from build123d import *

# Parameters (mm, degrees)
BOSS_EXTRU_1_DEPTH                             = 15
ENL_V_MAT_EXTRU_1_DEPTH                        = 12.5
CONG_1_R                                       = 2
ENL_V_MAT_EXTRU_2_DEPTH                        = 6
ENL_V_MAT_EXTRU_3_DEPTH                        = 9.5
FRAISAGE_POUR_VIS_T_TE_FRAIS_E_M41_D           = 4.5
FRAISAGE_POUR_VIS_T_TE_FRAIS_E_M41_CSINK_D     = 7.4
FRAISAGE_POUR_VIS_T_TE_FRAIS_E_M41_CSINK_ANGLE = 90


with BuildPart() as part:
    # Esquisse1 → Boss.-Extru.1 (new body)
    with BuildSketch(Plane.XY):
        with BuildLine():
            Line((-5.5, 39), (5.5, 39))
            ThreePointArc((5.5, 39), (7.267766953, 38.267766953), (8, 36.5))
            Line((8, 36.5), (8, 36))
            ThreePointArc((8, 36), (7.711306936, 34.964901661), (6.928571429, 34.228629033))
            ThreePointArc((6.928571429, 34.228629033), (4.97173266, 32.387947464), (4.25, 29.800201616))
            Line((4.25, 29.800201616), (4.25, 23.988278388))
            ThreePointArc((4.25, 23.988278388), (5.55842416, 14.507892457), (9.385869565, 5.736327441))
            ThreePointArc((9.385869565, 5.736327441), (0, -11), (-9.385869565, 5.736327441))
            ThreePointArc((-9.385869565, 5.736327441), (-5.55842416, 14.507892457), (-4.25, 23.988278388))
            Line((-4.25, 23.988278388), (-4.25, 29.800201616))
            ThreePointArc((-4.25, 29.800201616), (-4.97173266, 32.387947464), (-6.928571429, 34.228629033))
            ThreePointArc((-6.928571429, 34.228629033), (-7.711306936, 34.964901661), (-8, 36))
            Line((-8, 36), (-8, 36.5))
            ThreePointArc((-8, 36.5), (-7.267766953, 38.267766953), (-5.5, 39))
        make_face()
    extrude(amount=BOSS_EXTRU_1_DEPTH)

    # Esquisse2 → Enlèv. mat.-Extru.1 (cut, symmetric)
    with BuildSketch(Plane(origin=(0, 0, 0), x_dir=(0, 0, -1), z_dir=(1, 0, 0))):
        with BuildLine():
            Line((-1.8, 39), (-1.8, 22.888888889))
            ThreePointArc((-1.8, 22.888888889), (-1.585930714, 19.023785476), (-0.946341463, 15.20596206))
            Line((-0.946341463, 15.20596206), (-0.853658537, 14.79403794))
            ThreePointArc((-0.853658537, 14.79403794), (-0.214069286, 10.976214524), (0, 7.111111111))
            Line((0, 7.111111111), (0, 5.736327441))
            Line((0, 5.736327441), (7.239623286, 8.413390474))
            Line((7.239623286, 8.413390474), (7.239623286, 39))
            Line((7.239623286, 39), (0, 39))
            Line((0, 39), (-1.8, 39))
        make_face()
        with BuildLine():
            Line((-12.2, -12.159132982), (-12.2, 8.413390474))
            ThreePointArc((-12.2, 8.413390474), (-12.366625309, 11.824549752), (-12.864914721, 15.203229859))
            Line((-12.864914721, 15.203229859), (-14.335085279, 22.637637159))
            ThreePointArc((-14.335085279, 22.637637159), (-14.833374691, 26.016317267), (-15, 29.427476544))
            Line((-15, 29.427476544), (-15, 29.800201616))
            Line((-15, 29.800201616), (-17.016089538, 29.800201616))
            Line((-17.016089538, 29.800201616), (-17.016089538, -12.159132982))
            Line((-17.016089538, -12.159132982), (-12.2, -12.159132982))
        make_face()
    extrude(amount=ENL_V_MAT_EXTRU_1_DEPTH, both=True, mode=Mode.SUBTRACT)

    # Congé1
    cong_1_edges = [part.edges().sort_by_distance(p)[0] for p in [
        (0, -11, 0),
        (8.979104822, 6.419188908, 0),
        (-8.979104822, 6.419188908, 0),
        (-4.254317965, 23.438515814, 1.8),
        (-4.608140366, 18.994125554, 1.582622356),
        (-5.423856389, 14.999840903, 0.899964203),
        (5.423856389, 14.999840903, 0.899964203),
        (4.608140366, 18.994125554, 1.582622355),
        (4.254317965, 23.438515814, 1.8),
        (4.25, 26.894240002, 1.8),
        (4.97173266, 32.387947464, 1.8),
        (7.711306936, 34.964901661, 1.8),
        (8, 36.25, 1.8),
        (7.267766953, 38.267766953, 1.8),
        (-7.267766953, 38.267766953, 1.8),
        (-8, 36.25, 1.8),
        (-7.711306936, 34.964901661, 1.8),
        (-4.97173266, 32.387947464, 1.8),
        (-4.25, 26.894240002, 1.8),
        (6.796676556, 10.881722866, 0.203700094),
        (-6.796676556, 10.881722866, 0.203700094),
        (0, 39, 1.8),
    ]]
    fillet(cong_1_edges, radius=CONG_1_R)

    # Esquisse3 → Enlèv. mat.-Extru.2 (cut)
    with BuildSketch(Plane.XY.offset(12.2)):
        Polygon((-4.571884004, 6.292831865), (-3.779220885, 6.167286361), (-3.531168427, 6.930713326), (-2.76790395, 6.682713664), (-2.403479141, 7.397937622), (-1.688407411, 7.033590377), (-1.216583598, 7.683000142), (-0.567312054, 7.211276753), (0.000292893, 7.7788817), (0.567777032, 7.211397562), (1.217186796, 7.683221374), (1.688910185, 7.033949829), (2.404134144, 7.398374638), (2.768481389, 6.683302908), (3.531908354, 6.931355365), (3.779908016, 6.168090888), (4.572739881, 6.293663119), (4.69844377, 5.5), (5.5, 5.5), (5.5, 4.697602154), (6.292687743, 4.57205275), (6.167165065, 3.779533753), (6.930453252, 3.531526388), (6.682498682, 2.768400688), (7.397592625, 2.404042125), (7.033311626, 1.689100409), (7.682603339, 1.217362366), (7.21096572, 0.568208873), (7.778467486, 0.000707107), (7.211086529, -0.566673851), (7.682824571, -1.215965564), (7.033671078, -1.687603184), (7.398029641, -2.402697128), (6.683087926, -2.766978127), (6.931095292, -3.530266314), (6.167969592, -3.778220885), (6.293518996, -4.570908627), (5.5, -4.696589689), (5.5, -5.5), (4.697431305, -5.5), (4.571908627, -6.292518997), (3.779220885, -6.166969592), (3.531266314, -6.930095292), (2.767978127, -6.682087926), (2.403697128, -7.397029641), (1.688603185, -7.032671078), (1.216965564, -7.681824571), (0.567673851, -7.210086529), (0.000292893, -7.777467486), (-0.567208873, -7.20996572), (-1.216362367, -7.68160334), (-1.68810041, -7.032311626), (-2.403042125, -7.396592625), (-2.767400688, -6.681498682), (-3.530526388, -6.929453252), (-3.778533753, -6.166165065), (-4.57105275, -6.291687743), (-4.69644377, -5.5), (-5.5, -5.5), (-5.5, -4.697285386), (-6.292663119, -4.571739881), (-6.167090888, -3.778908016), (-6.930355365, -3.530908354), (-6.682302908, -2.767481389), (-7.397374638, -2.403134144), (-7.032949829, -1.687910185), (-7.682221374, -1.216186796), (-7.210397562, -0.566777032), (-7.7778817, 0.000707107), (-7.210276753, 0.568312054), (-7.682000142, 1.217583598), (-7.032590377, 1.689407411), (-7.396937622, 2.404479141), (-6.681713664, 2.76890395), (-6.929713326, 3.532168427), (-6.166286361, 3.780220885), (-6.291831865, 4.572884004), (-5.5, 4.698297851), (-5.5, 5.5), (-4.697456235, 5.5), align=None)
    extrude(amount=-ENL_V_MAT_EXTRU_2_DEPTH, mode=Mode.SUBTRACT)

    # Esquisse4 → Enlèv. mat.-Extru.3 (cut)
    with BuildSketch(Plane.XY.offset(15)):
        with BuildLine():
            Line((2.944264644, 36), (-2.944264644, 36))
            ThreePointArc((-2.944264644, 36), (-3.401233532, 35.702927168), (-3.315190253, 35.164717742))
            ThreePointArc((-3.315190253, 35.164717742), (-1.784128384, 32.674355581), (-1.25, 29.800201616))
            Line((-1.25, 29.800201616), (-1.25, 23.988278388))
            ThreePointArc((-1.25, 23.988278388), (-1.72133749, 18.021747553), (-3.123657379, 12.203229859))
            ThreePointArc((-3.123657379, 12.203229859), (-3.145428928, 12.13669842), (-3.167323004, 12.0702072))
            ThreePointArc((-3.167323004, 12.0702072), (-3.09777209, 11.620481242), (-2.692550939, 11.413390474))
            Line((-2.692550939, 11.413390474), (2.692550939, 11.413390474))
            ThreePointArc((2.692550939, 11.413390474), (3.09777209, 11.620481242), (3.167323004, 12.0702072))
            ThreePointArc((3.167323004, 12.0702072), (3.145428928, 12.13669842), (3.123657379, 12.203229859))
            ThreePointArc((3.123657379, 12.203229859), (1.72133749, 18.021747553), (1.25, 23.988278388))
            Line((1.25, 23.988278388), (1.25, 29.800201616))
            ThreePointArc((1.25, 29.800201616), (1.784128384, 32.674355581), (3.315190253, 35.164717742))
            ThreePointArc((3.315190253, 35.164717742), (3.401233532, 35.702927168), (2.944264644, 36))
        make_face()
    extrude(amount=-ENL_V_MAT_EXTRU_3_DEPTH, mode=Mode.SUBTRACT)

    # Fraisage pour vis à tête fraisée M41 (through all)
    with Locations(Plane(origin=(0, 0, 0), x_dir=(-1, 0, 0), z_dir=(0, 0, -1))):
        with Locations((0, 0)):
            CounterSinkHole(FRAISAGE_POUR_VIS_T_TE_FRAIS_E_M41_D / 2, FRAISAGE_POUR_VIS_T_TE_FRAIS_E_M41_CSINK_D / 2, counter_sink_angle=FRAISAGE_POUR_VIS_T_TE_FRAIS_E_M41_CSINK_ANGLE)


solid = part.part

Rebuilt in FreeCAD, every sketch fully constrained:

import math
import FreeCAD as App
import Part
import Sketcher
from FreeCAD import Vector
Q = App.Units.Quantity


def edges_at(feature, points):
    """Names of the edges that pass closest to the given points."""
    edges = feature.Shape.Edges
    near = lambda p: min(range(len(edges)), key=lambda i: edges[i].distToShape(Part.Vertex(*p))[0])
    return sorted({f"Edge{near(p) + 1}" for p in points})

doc = App.newDocument("Part")
params = doc.addObject("Spreadsheet::Sheet", "Params")
for row, (alias, value) in enumerate([
    ("sketch1_radius", "2 mm"),
    ("sketch1_radius2", "5 mm"),
    ("sketch1_radius3", "35 mm"),
    ("sketch1_radius4", "11 mm"),
    ("sketch1_radius5", "2.5 mm"),
    ("pad1_length", "15 mm"),
    ("sketch2_radius", "35 mm"),
    ("pocket1_length", "25 mm"),
    ("fillet_radius", "2 mm"),
    ("pocket2_length", "6 mm"),
    ("sketch4_radius", "8 mm"),
    ("sketch4_radius2", "38 mm"),
    ("sketch4_radius3", "0.5 mm"),
    ("pocket3_length", "9.5 mm"),
    ("sketch5_diameter", "4.5 mm"),
    ("hole_diameter", "4.5 mm"),
    ("hole_csink_diameter", "7.4 mm"),
], start=1):
    params.set(f"A{row}", alias)
    params.set(f"B{row}", "=" + value)
    params.setAlias(f"B{row}", alias)

body = doc.addObject("PartDesign::Body", "Body")

sketch1 = body.newObject("Sketcher::SketchObject", "Sketch")
sketch1.AttachmentSupport = (doc.getObject("XY_Plane"), [""])
sketch1.MapMode = "FlatFace"
sketch1.addGeometry([
    Part.LineSegment(Vector(5.5, 39, 0), Vector(-5.5, 39, 0)),
    Part.ArcOfCircle(Part.Circle(Vector(-5.5, 36.5, 0), Vector(0, 0, 1), 2.5), math.radians(90), math.radians(180)),
    Part.LineSegment(Vector(-8, 36.5, 0), Vector(-8, 36, 0)),
    Part.ArcOfCircle(Part.Circle(Vector(-6, 36, 0), Vector(0, 0, 1), 2), math.radians(180), math.radians(242)),
    Part.ArcOfCircle(Part.Circle(Vector(-9.2, 29.8, 0), Vector(0, 0, 1), 5), math.radians(0), math.radians(62)),
    Part.LineSegment(Vector(-4.2, 29.8, 0), Vector(-4.2, 24, 0)),
    Part.ArcOfCircle(Part.Circle(Vector(-39.3, 24, 0), Vector(0, 0, 1), 35), math.radians(-31), math.radians(0)),
    Part.ArcOfCircle(Part.Circle(Vector(0, 0, 0), Vector(0, 0, 1), 11), math.radians(149), math.radians(391)),
    Part.ArcOfCircle(Part.Circle(Vector(39.3, 24, 0), Vector(0, 0, 1), 35), math.radians(-180), math.radians(-149)),
    Part.LineSegment(Vector(4.2, 24, 0), Vector(4.2, 29.8, 0)),
    Part.ArcOfCircle(Part.Circle(Vector(9.2, 29.8, 0), Vector(0, 0, 1), 5), math.radians(118), math.radians(180)),
    Part.ArcOfCircle(Part.Circle(Vector(6, 36, 0), Vector(0, 0, 1), 2), math.radians(-62), math.radians(0)),
    Part.LineSegment(Vector(8, 36, 0), Vector(8, 36.5, 0)),
    Part.ArcOfCircle(Part.Circle(Vector(5.5, 36.5, 0), Vector(0, 0, 1), 2.5), math.radians(0), math.radians(90)),
], False)
sketch1.addConstraint([
    Sketcher.Constraint("Tangent", 0, 2, 1, 1),
    Sketcher.Constraint("Tangent", 1, 2, 2, 1),
    Sketcher.Constraint("Tangent", 2, 2, 3, 1),
    Sketcher.Constraint("Tangent", 3, 2, 4, 2),
    Sketcher.Constraint("Tangent", 4, 1, 5, 1),
    Sketcher.Constraint("Tangent", 5, 2, 6, 2),
    Sketcher.Constraint("Tangent", 6, 1, 7, 1),
    Sketcher.Constraint("Tangent", 7, 2, 8, 2),
    Sketcher.Constraint("Tangent", 8, 1, 9, 1),
    Sketcher.Constraint("Tangent", 9, 2, 10, 2),
    Sketcher.Constraint("Tangent", 10, 1, 11, 1),
    Sketcher.Constraint("Tangent", 11, 2, 12, 1),
    Sketcher.Constraint("Tangent", 12, 2, 13, 1),
    Sketcher.Constraint("Tangent", 13, 2, 0, 1),
    Sketcher.Constraint("Horizontal", 0),
    Sketcher.Constraint("Vertical", 2),
    Sketcher.Constraint("Vertical", 5),
    Sketcher.Constraint("Vertical", 9),
    Sketcher.Constraint("Vertical", 12),
    Sketcher.Constraint("Coincident", 7, 3, -1, 1),
    Sketcher.Constraint("Equal", 6, 8),
    Sketcher.Constraint("Equal", 4, 10),
    Sketcher.Constraint("Equal", 3, 11),
    Sketcher.Constraint("Equal", 1, 13),
    Sketcher.Constraint("Symmetric", 4, 3, 10, 3, -2),
    Sketcher.Constraint("Horizontal", 3, 3, 11, 3),
    Sketcher.Constraint("Radius", 3, Q("2 mm")),
    Sketcher.Constraint("Radius", 4, Q("5 mm")),
    Sketcher.Constraint("Radius", 6, Q("35 mm")),
    Sketcher.Constraint("Radius", 7, Q("11 mm")),
    Sketcher.Constraint("Radius", 1, Q("2.5 mm")),
    Sketcher.Constraint("DistanceX", 0, 2, 0, 1, Q("11 mm")),
    Sketcher.Constraint("DistanceY", 2, 2, 2, 1, Q("0.5 mm")),
    Sketcher.Constraint("DistanceY", -1, 1, 3, 3, Q("36 mm")),
    Sketcher.Constraint("DistanceX", 4, 3, 8, 3, Q("48.5 mm")),
])
sketch1.setExpression("Constraints[26]", "Params.sketch1_radius")
sketch1.setExpression("Constraints[27]", "Params.sketch1_radius2")
sketch1.setExpression("Constraints[28]", "Params.sketch1_radius3")
sketch1.setExpression("Constraints[29]", "Params.sketch1_radius4")
sketch1.setExpression("Constraints[30]", "Params.sketch1_radius5")
pad1 = body.newObject("PartDesign::Pad", "Pad")
pad1.Profile = sketch1
pad1.setExpression("Length", "Params.pad1_length")

sketch2 = body.newObject("Sketcher::SketchObject", "Sketch001")
sketch2.AttachmentSupport = (doc.getObject("YZ_Plane"), [""])
sketch2.MapMode = "FlatFace"
sketch2.addGeometry([
    Part.LineSegment(Vector(39, 1.8, 0), Vector(22.89, 1.8, 0)),
    Part.ArcOfCircle(Part.Circle(Vector(22.89, -33.2, 0), Vector(0, 0, 1), 35), math.radians(90), math.radians(102.68)),
    Part.LineSegment(Vector(15.21, 0.95, 0), Vector(14.79, 0.85, 0)),
    Part.ArcOfCircle(Part.Circle(Vector(7.11, 35, 0), Vector(0, 0, 1), 35), math.radians(-90), math.radians(-77.32)),
    Part.LineSegment(Vector(7.11, 0, 0), Vector(5.74, 0, 0)),
    Part.LineSegment(Vector(5.74, 0, 0), Vector(8.41, -7.24, 0)),
    Part.LineSegment(Vector(8.41, -7.24, 0), Vector(39, -7.24, 0)),
    Part.LineSegment(Vector(39, -7.24, 0), Vector(39, 1.8, 0)),
    Part.LineSegment(Vector(-12.16, 12.2, 0), Vector(8.41, 12.2, 0)),
    Part.ArcOfCircle(Part.Circle(Vector(8.41, 47.2, 0), Vector(0, 0, 1), 35), math.radians(-90), math.radians(-78.81)),
    Part.LineSegment(Vector(15.2, 12.86, 0), Vector(22.64, 14.34, 0)),
    Part.ArcOfCircle(Part.Circle(Vector(29.43, -20, 0), Vector(0, 0, 1), 35), math.radians(90), math.radians(101.19)),
    Part.LineSegment(Vector(29.43, 15, 0), Vector(29.8, 15, 0)),
    Part.LineSegment(Vector(29.8, 15, 0), Vector(29.8, 17.02, 0)),
    Part.LineSegment(Vector(29.8, 17.02, 0), Vector(-12.16, 17.02, 0)),
    Part.LineSegment(Vector(-12.16, 17.02, 0), Vector(-12.16, 12.2, 0)),
], False)
sketch2.addConstraint([
    Sketcher.Constraint("Tangent", 0, 2, 1, 1),
    Sketcher.Constraint("Tangent", 1, 2, 2, 1),
    Sketcher.Constraint("Tangent", 2, 2, 3, 2),
    Sketcher.Constraint("Tangent", 3, 1, 4, 1),
    Sketcher.Constraint("Coincident", 4, 2, 5, 1),
    Sketcher.Constraint("Coincident", 5, 2, 6, 1),
    Sketcher.Constraint("Coincident", 6, 2, 7, 1),
    Sketcher.Constraint("Coincident", 7, 2, 0, 1),
    Sketcher.Constraint("Tangent", 8, 2, 9, 1),
    Sketcher.Constraint("Tangent", 9, 2, 10, 1),
    Sketcher.Constraint("Tangent", 10, 2, 11, 2),
    Sketcher.Constraint("Tangent", 11, 1, 12, 1),
    Sketcher.Constraint("Coincident", 12, 2, 13, 1),
    Sketcher.Constraint("Coincident", 13, 2, 14, 1),
    Sketcher.Constraint("Coincident", 14, 2, 15, 1),
    Sketcher.Constraint("Coincident", 15, 2, 8, 1),
    Sketcher.Constraint("Horizontal", 0),
    Sketcher.Constraint("Horizontal", 4),
    Sketcher.Constraint("Horizontal", 6),
    Sketcher.Constraint("Vertical", 7),
    Sketcher.Constraint("Horizontal", 8),
    Sketcher.Constraint("Horizontal", 12),
    Sketcher.Constraint("Vertical", 13),
    Sketcher.Constraint("Horizontal", 14),
    Sketcher.Constraint("Vertical", 15),
    Sketcher.Constraint("Equal", 1, 3),
    Sketcher.Constraint("Equal", 3, 9),
    Sketcher.Constraint("Equal", 9, 11),
    Sketcher.Constraint("PointOnObject", 3, 1, -1),
    Sketcher.Constraint("Vertical", 9, 3, 5, 2),
    Sketcher.Constraint("Radius", 1, Q("35 mm")),
    Sketcher.Constraint("DistanceY", 11, 3, -1, 1, Q("20 mm")),
    Sketcher.Constraint("DistanceX", -1, 1, 6, 2, Q("39 mm")),
    Sketcher.Constraint("DistanceY", 1, 3, -1, 1, Q("33.2 mm")),
    Sketcher.Constraint("DistanceY", -1, 1, 9, 3, Q("47.2 mm")),
    Sketcher.Constraint("DistanceX", 0, 2, 0, 1, Q("16.111111 mm")),
    Sketcher.Constraint("DistanceX", 6, 1, 6, 2, Q("30.58661 mm")),
    Sketcher.Constraint("DistanceY", 13, 1, 13, 2, Q("2.01609 mm")),
    Sketcher.Constraint("DistanceX", -1, 1, 12, 2, Q("29.800202 mm")),
    Sketcher.Constraint("DistanceX", 2, 2, 10, 2, Q("7.843599 mm")),
    Sketcher.Constraint("Distance", 5, Q("7.718731 mm")),
    Sketcher.Constraint("Distance", 10, Q("7.578378 mm")),
    Sketcher.Constraint("DistanceX", 4, 2, 4, 1, Q("1.374784 mm")),
    Sketcher.Constraint("DistanceX", 8, 1, 8, 2, Q("20.572523 mm")),
])
sketch2.setExpression("Constraints[30]", "Params.sketch2_radius")
pocket1 = body.newObject("PartDesign::Pocket", "Pocket")
pocket1.Profile = sketch2
pocket1.setExpression("Length", "Params.pocket1_length")
pocket1.Midplane = True
doc.recompute()

fillet = body.newObject("PartDesign::Fillet", "Fillet")
fillet.Base = (pocket1, edges_at(pocket1, [
    (0, -11, 0),
    (8.979, 6.419, 0),
    (-8.979, 6.419, 0),
    (-4.254, 23.439, 1.8),
    (-4.608, 18.994, 1.583),
    (-5.424, 15, 0.9),
    (5.424, 15, 0.9),
    (4.608, 18.994, 1.583),
    (4.254, 23.439, 1.8),
    (4.25, 26.894, 1.8),
    (4.972, 32.388, 1.8),
    (7.711, 34.965, 1.8),
    (8, 36.25, 1.8),
    (7.268, 38.268, 1.8),
    (-7.268, 38.268, 1.8),
    (-8, 36.25, 1.8),
    (-7.711, 34.965, 1.8),
    (-4.972, 32.388, 1.8),
    (-4.25, 26.894, 1.8),
    (6.797, 10.882, 0.204),
    (-6.797, 10.882, 0.204),
    (0, 39, 1.8),
]))
fillet.setExpression("Radius", "Params.fillet_radius")

sketch3 = body.newObject("Sketcher::SketchObject", "Sketch002")
sketch3.AttachmentSupport = (doc.getObject("XY_Plane"), [""])
sketch3.MapMode = "FlatFace"
sketch3.AttachmentOffset = App.Placement(Vector(0, 0, 12.2), App.Rotation())
sketch3.addGeometry([
    Part.LineSegment(Vector(-3.8, 6.2, 0), Vector(-4.6, 6.3, 0)),
    Part.LineSegment(Vector(-4.6, 6.3, 0), Vector(-4.7, 5.5, 0)),
    Part.LineSegment(Vector(-4.7, 5.5, 0), Vector(-5.5, 5.5, 0)),
    Part.LineSegment(Vector(-5.5, 5.5, 0), Vector(-5.5, 4.7, 0)),
    Part.LineSegment(Vector(-5.5, 4.7, 0), Vector(-6.3, 4.6, 0)),
    Part.LineSegment(Vector(-6.3, 4.6, 0), Vector(-6.2, 3.8, 0)),
    Part.LineSegment(Vector(-6.2, 3.8, 0), Vector(-6.9, 3.5, 0)),
    Part.LineSegment(Vector(-6.9, 3.5, 0), Vector(-6.7, 2.8, 0)),
    Part.LineSegment(Vector(-6.7, 2.8, 0), Vector(-7.4, 2.4, 0)),
    Part.LineSegment(Vector(-7.4, 2.4, 0), Vector(-7, 1.7, 0)),
    Part.LineSegment(Vector(-7, 1.7, 0), Vector(-7.7, 1.2, 0)),
    Part.LineSegment(Vector(-7.7, 1.2, 0), Vector(-7.2, 0.6, 0)),
    Part.LineSegment(Vector(-7.2, 0.6, 0), Vector(-7.8, 0, 0)),
    Part.LineSegment(Vector(-7.8, 0, 0), Vector(-7.2, -0.6, 0)),
    Part.LineSegment(Vector(-7.2, -0.6, 0), Vector(-7.7, -1.2, 0)),
    Part.LineSegment(Vector(-7.7, -1.2, 0), Vector(-7, -1.7, 0)),
    Part.LineSegment(Vector(-7, -1.7, 0), Vector(-7.4, -2.4, 0)),
    Part.LineSegment(Vector(-7.4, -2.4, 0), Vector(-6.7, -2.8, 0)),
    Part.LineSegment(Vector(-6.7, -2.8, 0), Vector(-6.9, -3.5, 0)),
    Part.LineSegment(Vector(-6.9, -3.5, 0), Vector(-6.2, -3.8, 0)),
    Part.LineSegment(Vector(-6.2, -3.8, 0), Vector(-6.3, -4.6, 0)),
    Part.LineSegment(Vector(-6.3, -4.6, 0), Vector(-5.5, -4.7, 0)),
    Part.LineSegment(Vector(-5.5, -4.7, 0), Vector(-5.5, -5.5, 0)),
    Part.LineSegment(Vector(-5.5, -5.5, 0), Vector(-4.7, -5.5, 0)),
    Part.LineSegment(Vector(-4.7, -5.5, 0), Vector(-4.6, -6.3, 0)),
    Part.LineSegment(Vector(-4.6, -6.3, 0), Vector(-3.8, -6.2, 0)),
    Part.LineSegment(Vector(-3.8, -6.2, 0), Vector(-3.5, -6.9, 0)),
    Part.LineSegment(Vector(-3.5, -6.9, 0), Vector(-2.8, -6.7, 0)),
    Part.LineSegment(Vector(-2.8, -6.7, 0), Vector(-2.4, -7.4, 0)),
    Part.LineSegment(Vector(-2.4, -7.4, 0), Vector(-1.7, -7, 0)),
    Part.LineSegment(Vector(-1.7, -7, 0), Vector(-1.2, -7.7, 0)),
    Part.LineSegment(Vector(-1.2, -7.7, 0), Vector(-0.6, -7.2, 0)),
    Part.LineSegment(Vector(-0.6, -7.2, 0), Vector(0, -7.8, 0)),
    Part.LineSegment(Vector(0, -7.8, 0), Vector(0.6, -7.2, 0)),
    Part.LineSegment(Vector(0.6, -7.2, 0), Vector(1.2, -7.7, 0)),
    Part.LineSegment(Vector(1.2, -7.7, 0), Vector(1.7, -7, 0)),
    Part.LineSegment(Vector(1.7, -7, 0), Vector(2.4, -7.4, 0)),
    Part.LineSegment(Vector(2.4, -7.4, 0), Vector(2.8, -6.7, 0)),
    Part.LineSegment(Vector(2.8, -6.7, 0), Vector(3.5, -6.9, 0)),
    Part.LineSegment(Vector(3.5, -6.9, 0), Vector(3.8, -6.2, 0)),
    Part.LineSegment(Vector(3.8, -6.2, 0), Vector(4.6, -6.3, 0)),
    Part.LineSegment(Vector(4.6, -6.3, 0), Vector(4.7, -5.5, 0)),
    Part.LineSegment(Vector(4.7, -5.5, 0), Vector(5.5, -5.5, 0)),
    Part.LineSegment(Vector(5.5, -5.5, 0), Vector(5.5, -4.7, 0)),
    Part.LineSegment(Vector(5.5, -4.7, 0), Vector(6.3, -4.6, 0)),
    Part.LineSegment(Vector(6.3, -4.6, 0), Vector(6.2, -3.8, 0)),
    Part.LineSegment(Vector(6.2, -3.8, 0), Vector(6.9, -3.5, 0)),
    Part.LineSegment(Vector(6.9, -3.5, 0), Vector(6.7, -2.8, 0)),
    Part.LineSegment(Vector(6.7, -2.8, 0), Vector(7.4, -2.4, 0)),
    Part.LineSegment(Vector(7.4, -2.4, 0), Vector(7, -1.7, 0)),
    Part.LineSegment(Vector(7, -1.7, 0), Vector(7.7, -1.2, 0)),
    Part.LineSegment(Vector(7.7, -1.2, 0), Vector(7.2, -0.6, 0)),
    Part.LineSegment(Vector(7.2, -0.6, 0), Vector(7.8, 0, 0)),
    Part.LineSegment(Vector(7.8, 0, 0), Vector(7.2, 0.6, 0)),
    Part.LineSegment(Vector(7.2, 0.6, 0), Vector(7.7, 1.2, 0)),
    Part.LineSegment(Vector(7.7, 1.2, 0), Vector(7, 1.7, 0)),
    Part.LineSegment(Vector(7, 1.7, 0), Vector(7.4, 2.4, 0)),
    Part.LineSegment(Vector(7.4, 2.4, 0), Vector(6.7, 2.8, 0)),
    Part.LineSegment(Vector(6.7, 2.8, 0), Vector(6.9, 3.5, 0)),
    Part.LineSegment(Vector(6.9, 3.5, 0), Vector(6.2, 3.8, 0)),
    Part.LineSegment(Vector(6.2, 3.8, 0), Vector(6.3, 4.6, 0)),
    Part.LineSegment(Vector(6.3, 4.6, 0), Vector(5.5, 4.7, 0)),
    Part.LineSegment(Vector(5.5, 4.7, 0), Vector(5.5, 5.5, 0)),
    Part.LineSegment(Vector(5.5, 5.5, 0), Vector(4.7, 5.5, 0)),
    Part.LineSegment(Vector(4.7, 5.5, 0), Vector(4.6, 6.3, 0)),
    Part.LineSegment(Vector(4.6, 6.3, 0), Vector(3.8, 6.2, 0)),
    Part.LineSegment(Vector(3.8, 6.2, 0), Vector(3.5, 6.9, 0)),
    Part.LineSegment(Vector(3.5, 6.9, 0), Vector(2.8, 6.7, 0)),
    Part.LineSegment(Vector(2.8, 6.7, 0), Vector(2.4, 7.4, 0)),
    Part.LineSegment(Vector(2.4, 7.4, 0), Vector(1.7, 7, 0)),
    Part.LineSegment(Vector(1.7, 7, 0), Vector(1.2, 7.7, 0)),
    Part.LineSegment(Vector(1.2, 7.7, 0), Vector(0.6, 7.2, 0)),
    Part.LineSegment(Vector(0.6, 7.2, 0), Vector(0, 7.8, 0)),
    Part.LineSegment(Vector(0, 7.8, 0), Vector(-0.6, 7.2, 0)),
    Part.LineSegment(Vector(-0.6, 7.2, 0), Vector(-1.2, 7.7, 0)),
    Part.LineSegment(Vector(-1.2, 7.7, 0), Vector(-1.7, 7, 0)),
    Part.LineSegment(Vector(-1.7, 7, 0), Vector(-2.4, 7.4, 0)),
    Part.LineSegment(Vector(-2.4, 7.4, 0), Vector(-2.8, 6.7, 0)),
    Part.LineSegment(Vector(-2.8, 6.7, 0), Vector(-3.5, 6.9, 0)),
    Part.LineSegment(Vector(-3.5, 6.9, 0), Vector(-3.8, 6.2, 0)),
], False)
sketch3.addConstraint([
    Sketcher.Constraint("Coincident", 0, 2, 1, 1),
    Sketcher.Constraint("Coincident", 1, 2, 2, 1),
    Sketcher.Constraint("Coincident", 2, 2, 3, 1),
    Sketcher.Constraint("Coincident", 3, 2, 4, 1),
    Sketcher.Constraint("Coincident", 4, 2, 5, 1),
    Sketcher.Constraint("Coincident", 5, 2, 6, 1),
    Sketcher.Constraint("Coincident", 6, 2, 7, 1),
    Sketcher.Constraint("Coincident", 7, 2, 8, 1),
    Sketcher.Constraint("Coincident", 8, 2, 9, 1),
    Sketcher.Constraint("Coincident", 9, 2, 10, 1),
    Sketcher.Constraint("Coincident", 10, 2, 11, 1),
    Sketcher.Constraint("Coincident", 11, 2, 12, 1),
    Sketcher.Constraint("Coincident", 12, 2, 13, 1),
    Sketcher.Constraint("Coincident", 13, 2, 14, 1),
    Sketcher.Constraint("Coincident", 14, 2, 15, 1),
    Sketcher.Constraint("Coincident", 15, 2, 16, 1),
    Sketcher.Constraint("Coincident", 16, 2, 17, 1),
    Sketcher.Constraint("Coincident", 17, 2, 18, 1),
    Sketcher.Constraint("Coincident", 18, 2, 19, 1),
    Sketcher.Constraint("Coincident", 19, 2, 20, 1),
    Sketcher.Constraint("Coincident", 20, 2, 21, 1),
    Sketcher.Constraint("Coincident", 21, 2, 22, 1),
    Sketcher.Constraint("Coincident", 22, 2, 23, 1),
    Sketcher.Constraint("Coincident", 23, 2, 24, 1),
    Sketcher.Constraint("Coincident", 24, 2, 25, 1),
    Sketcher.Constraint("Coincident", 25, 2, 26, 1),
    Sketcher.Constraint("Coincident", 26, 2, 27, 1),
    Sketcher.Constraint("Coincident", 27, 2, 28, 1),
    Sketcher.Constraint("Coincident", 28, 2, 29, 1),
    Sketcher.Constraint("Coincident", 29, 2, 30, 1),
    Sketcher.Constraint("Coincident", 30, 2, 31, 1),
    Sketcher.Constraint("Coincident", 31, 2, 32, 1),
    Sketcher.Constraint("Coincident", 32, 2, 33, 1),
    Sketcher.Constraint("Coincident", 33, 2, 34, 1),
    Sketcher.Constraint("Coincident", 34, 2, 35, 1),
    Sketcher.Constraint("Coincident", 35, 2, 36, 1),
    Sketcher.Constraint("Coincident", 36, 2, 37, 1),
    Sketcher.Constraint("Coincident", 37, 2, 38, 1),
    Sketcher.Constraint("Coincident", 38, 2, 39, 1),
    Sketcher.Constraint("Coincident", 39, 2, 40, 1),
    Sketcher.Constraint("Coincident", 40, 2, 41, 1),
    Sketcher.Constraint("Coincident", 41, 2, 42, 1),
    Sketcher.Constraint("Coincident", 42, 2, 43, 1),
    Sketcher.Constraint("Coincident", 43, 2, 44, 1),
    Sketcher.Constraint("Coincident", 44, 2, 45, 1),
    Sketcher.Constraint("Coincident", 45, 2, 46, 1),
    Sketcher.Constraint("Coincident", 46, 2, 47, 1),
    Sketcher.Constraint("Coincident", 47, 2, 48, 1),
    Sketcher.Constraint("Coincident", 48, 2, 49, 1),
    Sketcher.Constraint("Coincident", 49, 2, 50, 1),
    Sketcher.Constraint("Coincident", 50, 2, 51, 1),
    Sketcher.Constraint("Coincident", 51, 2, 52, 1),
    Sketcher.Constraint("Coincident", 52, 2, 53, 1),
    Sketcher.Constraint("Coincident", 53, 2, 54, 1),
    Sketcher.Constraint("Coincident", 54, 2, 55, 1),
    Sketcher.Constraint("Coincident", 55, 2, 56, 1),
    Sketcher.Constraint("Coincident", 56, 2, 57, 1),
    Sketcher.Constraint("Coincident", 57, 2, 58, 1),
    Sketcher.Constraint("Coincident", 58, 2, 59, 1),
    Sketcher.Constraint("Coincident", 59, 2, 60, 1),
    Sketcher.Constraint("Coincident", 60, 2, 61, 1),
    Sketcher.Constraint("Coincident", 61, 2, 62, 1),
    Sketcher.Constraint("Coincident", 62, 2, 63, 1),
    Sketcher.Constraint("Coincident", 63, 2, 64, 1),
    Sketcher.Constraint("Coincident", 64, 2, 65, 1),
    Sketcher.Constraint("Coincident", 65, 2, 66, 1),
    Sketcher.Constraint("Coincident", 66, 2, 67, 1),
    Sketcher.Constraint("Coincident", 67, 2, 68, 1),
    Sketcher.Constraint("Coincident", 68, 2, 69, 1),
    Sketcher.Constraint("Coincident", 69, 2, 70, 1),
    Sketcher.Constraint("Coincident", 70, 2, 71, 1),
    Sketcher.Constraint("Coincident", 71, 2, 72, 1),
    Sketcher.Constraint("Coincident", 72, 2, 73, 1),
    Sketcher.Constraint("Coincident", 73, 2, 74, 1),
    Sketcher.Constraint("Coincident", 74, 2, 75, 1),
    Sketcher.Constraint("Coincident", 75, 2, 76, 1),
    Sketcher.Constraint("Coincident", 76, 2, 77, 1),
    Sketcher.Constraint("Coincident", 77, 2, 78, 1),
    Sketcher.Constraint("Coincident", 78, 2, 79, 1),
    Sketcher.Constraint("Coincident", 79, 2, 0, 1),
    Sketcher.Constraint("Horizontal", 2),
    Sketcher.Constraint("Vertical", 3),
    Sketcher.Constraint("Vertical", 22),
    Sketcher.Constraint("Horizontal", 23),
    Sketcher.Constraint("Horizontal", 42),
    Sketcher.Constraint("Vertical", 43),
    Sketcher.Constraint("Vertical", 62),
    Sketcher.Constraint("Horizontal", 63),
    Sketcher.Constraint("Symmetric", 2, 2, 42, 2, -1, 1),
    Sketcher.Constraint("Symmetric", 22, 2, 62, 2, -1, 1),
    Sketcher.Constraint("Symmetric", 22, 2, 42, 2, -2),
    Sketcher.Constraint("Perpendicular", 0, 1),
    Sketcher.Constraint("Perpendicular", 4, 5),
    Sketcher.Constraint("Perpendicular", 6, 7),
    Sketcher.Constraint("Perpendicular", 8, 9),
    Sketcher.Constraint("Perpendicular", 10, 11),
    Sketcher.Constraint("Perpendicular", 12, 13),
    Sketcher.Constraint("Perpendicular", 14, 15),
    Sketcher.Constraint("Perpendicular", 16, 17),
    Sketcher.Constraint("Perpendicular", 18, 19),
    Sketcher.Constraint("Parallel", 1, 20),
    Sketcher.Constraint("Perpendicular", 20, 21),
    Sketcher.Constraint("Parallel", 5, 24),
    Sketcher.Constraint("Perpendicular", 24, 25),
    Sketcher.Constraint("Parallel", 7, 26),
    Sketcher.Constraint("Perpendicular", 26, 27),
    Sketcher.Constraint("Parallel", 9, 28),
    Sketcher.Constraint("Perpendicular", 28, 29),
    Sketcher.Constraint("Parallel", 11, 30),
    Sketcher.Constraint("Perpendicular", 30, 31),
    Sketcher.Constraint("Parallel", 13, 32),
    Sketcher.Constraint("Perpendicular", 32, 33),
    Sketcher.Constraint("Parallel", 15, 34),
    Sketcher.Constraint("Perpendicular", 34, 35),
    Sketcher.Constraint("Parallel", 17, 36),
    Sketcher.Constraint("Perpendicular", 36, 37),
    Sketcher.Constraint("Parallel", 19, 38),
    Sketcher.Constraint("Perpendicular", 38, 39),
    Sketcher.Constraint("Parallel", 21, 40),
    Sketcher.Constraint("Perpendicular", 40, 41),
    Sketcher.Constraint("Parallel", 25, 44),
    Sketcher.Constraint("Perpendicular", 44, 45),
    Sketcher.Constraint("Parallel", 27, 46),
    Sketcher.Constraint("Perpendicular", 46, 47),
    Sketcher.Constraint("Parallel", 29, 48),
    Sketcher.Constraint("Perpendicular", 48, 49),
    Sketcher.Constraint("Parallel", 31, 50),
    Sketcher.Constraint("Perpendicular", 50, 51),
    Sketcher.Constraint("Parallel", 33, 52),
    Sketcher.Constraint("Perpendicular", 52, 53),
    Sketcher.Constraint("Parallel", 35, 54),
    Sketcher.Constraint("Perpendicular", 54, 55),
    Sketcher.Constraint("Parallel", 37, 56),
    Sketcher.Constraint("Perpendicular", 56, 57),
    Sketcher.Constraint("Parallel", 39, 58),
    Sketcher.Constraint("Perpendicular", 58, 59),
    Sketcher.Constraint("Parallel", 41, 60),
    Sketcher.Constraint("Perpendicular", 60, 61),
    Sketcher.Constraint("Parallel", 45, 64),
    Sketcher.Constraint("Perpendicular", 64, 65),
    Sketcher.Constraint("Parallel", 47, 66),
    Sketcher.Constraint("Perpendicular", 66, 67),
    Sketcher.Constraint("Parallel", 49, 68),
    Sketcher.Constraint("Perpendicular", 68, 69),
    Sketcher.Constraint("Parallel", 51, 70),
    Sketcher.Constraint("Perpendicular", 70, 71),
    Sketcher.Constraint("Parallel", 53, 72),
    Sketcher.Constraint("Perpendicular", 72, 73),
    Sketcher.Constraint("Parallel", 55, 74),
    Sketcher.Constraint("Perpendicular", 74, 75),
    Sketcher.Constraint("Parallel", 57, 76),
    Sketcher.Constraint("Perpendicular", 76, 77),
    Sketcher.Constraint("Parallel", 59, 78),
    Sketcher.Constraint("Perpendicular", 78, 79),
    Sketcher.Constraint("Horizontal", 12, 2, 52, 2),
    Sketcher.Constraint("Vertical", 32, 2, 72, 2),
    Sketcher.Constraint("Equal", 0, 5),
    Sketcher.Constraint("Equal", 1, 6),
    Sketcher.Constraint("Equal", 5, 7),
    Sketcher.Constraint("Equal", 6, 8),
    Sketcher.Constraint("Equal", 7, 9),
    Sketcher.Constraint("Equal", 8, 10),
    Sketcher.Constraint("Equal", 9, 11),
    Sketcher.Constraint("Equal", 10, 12),
    Sketcher.Constraint("Equal", 11, 13),
    Sketcher.Constraint("Equal", 12, 14),
    Sketcher.Constraint("Equal", 13, 15),
    Sketcher.Constraint("Equal", 14, 16),
    Sketcher.Constraint("Equal", 15, 17),
    Sketcher.Constraint("Equal", 16, 18),
    Sketcher.Constraint("Equal", 17, 19),
    Sketcher.Constraint("Equal", 18, 20),
    Sketcher.Constraint("Equal", 19, 21),
    Sketcher.Constraint("Equal", 25, 27),
    Sketcher.Constraint("Equal", 26, 28),
    Sketcher.Constraint("Equal", 27, 29),
    Sketcher.Constraint("Equal", 28, 30),
    Sketcher.Constraint("Equal", 29, 31),
    Sketcher.Constraint("Equal", 30, 32),
    Sketcher.Constraint("Equal", 31, 33),
    Sketcher.Constraint("Equal", 32, 34),
    Sketcher.Constraint("Equal", 33, 35),
    Sketcher.Constraint("Equal", 34, 36),
    Sketcher.Constraint("Equal", 35, 37),
    Sketcher.Constraint("Equal", 36, 38),
    Sketcher.Constraint("Equal", 37, 39),
    Sketcher.Constraint("Equal", 38, 40),
    Sketcher.Constraint("Equal", 39, 41),
    Sketcher.Constraint("Equal", 40, 45),
    Sketcher.Constraint("Equal", 41, 46),
    Sketcher.Constraint("Equal", 45, 47),
    Sketcher.Constraint("Equal", 46, 48),
    Sketcher.Constraint("Equal", 47, 49),
    Sketcher.Constraint("Equal", 48, 50),
    Sketcher.Constraint("Equal", 49, 51),
    Sketcher.Constraint("Equal", 50, 52),
    Sketcher.Constraint("Equal", 51, 53),
    Sketcher.Constraint("Equal", 52, 54),
    Sketcher.Constraint("Equal", 53, 55),
    Sketcher.Constraint("Equal", 54, 56),
    Sketcher.Constraint("Equal", 55, 57),
    Sketcher.Constraint("Equal", 56, 58),
    Sketcher.Constraint("Equal", 57, 59),
    Sketcher.Constraint("Equal", 58, 60),
    Sketcher.Constraint("Equal", 59, 61),
    Sketcher.Constraint("Equal", 20, 65),
    Sketcher.Constraint("Equal", 21, 66),
    Sketcher.Constraint("Equal", 65, 67),
    Sketcher.Constraint("Equal", 66, 68),
    Sketcher.Constraint("Equal", 67, 69),
    Sketcher.Constraint("Equal", 68, 70),
    Sketcher.Constraint("Equal", 69, 71),
    Sketcher.Constraint("Equal", 70, 72),
    Sketcher.Constraint("Equal", 71, 73),
    Sketcher.Constraint("Equal", 72, 74),
    Sketcher.Constraint("Equal", 73, 75),
    Sketcher.Constraint("Equal", 74, 76),
    Sketcher.Constraint("Equal", 75, 77),
    Sketcher.Constraint("Equal", 76, 78),
    Sketcher.Constraint("Equal", 77, 79),
    Sketcher.Constraint("Angle", 0, Q("171 deg")),
    Sketcher.Constraint("Angle", 4, Q("-171 deg")),
    Sketcher.Constraint("Angle", 6, Q("-162 deg")),
    Sketcher.Constraint("Angle", 8, Q("-153 deg")),
    Sketcher.Constraint("Angle", 10, Q("-144 deg")),
    Sketcher.Constraint("Angle", 12, Q("-135 deg")),
    Sketcher.Constraint("Angle", 14, Q("-126 deg")),
    Sketcher.Constraint("Angle", 16, Q("-117 deg")),
    Sketcher.Constraint("Angle", 18, Q("-108 deg")),
    Sketcher.Constraint("DistanceY", -1, 1, 1, 2, Q("5.5 mm")),
    Sketcher.Constraint("DistanceX", 2, 2, -1, 1, Q("5.5 mm")),
    Sketcher.Constraint("DistanceX", 10, 2, -1, 1, Q("7.682 mm")),
    Sketcher.Constraint("DistanceY", -1, 1, 74, 2, Q("7.683 mm")),
    Sketcher.Constraint("DistanceX", 42, 1, 42, 2, Q("0.802569 mm")),
    Sketcher.Constraint("DistanceY", 43, 1, 43, 2, Q("0.80341 mm")),
    Sketcher.Constraint("DistanceX", 27, 2, -1, 1, Q("2.767401 mm")),
    Sketcher.Constraint("DistanceY", 27, 2, -1, 1, Q("6.681499 mm")),
])
pocket2 = body.newObject("PartDesign::Pocket", "Pocket001")
pocket2.Profile = sketch3
pocket2.setExpression("Length", "Params.pocket2_length")

sketch4 = body.newObject("Sketcher::SketchObject", "Sketch003")
sketch4.AttachmentSupport = (doc.getObject("XY_Plane"), [""])
sketch4.MapMode = "FlatFace"
sketch4.AttachmentOffset = App.Placement(Vector(0, 0, 15), App.Rotation())
sketch4.addGeometry([
    Part.LineSegment(Vector(2.94, 36, 0), Vector(-2.94, 36, 0)),
    Part.ArcOfCircle(Part.Circle(Vector(-2.94, 35.5, 0), Vector(0, 0, 1), 0.5), math.radians(90), math.radians(222)),
    Part.ArcOfCircle(Part.Circle(Vector(-9.25, 29.8, 0), Vector(0, 0, 1), 8), math.radians(0), math.radians(42)),
    Part.LineSegment(Vector(-1.25, 29.8, 0), Vector(-1.25, 23.99, 0)),
    Part.ArcOfCircle(Part.Circle(Vector(-39.25, 23.99, 0), Vector(0, 0, 1), 38), math.radians(-18.07), math.radians(0)),
    Part.ArcOfCircle(Part.Circle(Vector(-39.25, 23.99, 0), Vector(0, 0, 1), 38), math.radians(-18.28), math.radians(-18.07)),
    Part.ArcOfCircle(Part.Circle(Vector(-2.69, 11.91, 0), Vector(0, 0, 1), 0.5), math.radians(162), math.radians(270)),
    Part.LineSegment(Vector(-2.69, 11.41, 0), Vector(2.69, 11.41, 0)),
    Part.ArcOfCircle(Part.Circle(Vector(2.69, 11.91, 0), Vector(0, 0, 1), 0.5), math.radians(-90), math.radians(18)),
    Part.ArcOfCircle(Part.Circle(Vector(39.25, 23.99, 0), Vector(0, 0, 1), 38), math.radians(-161.93), math.radians(-161.72)),
    Part.ArcOfCircle(Part.Circle(Vector(39.25, 23.99, 0), Vector(0, 0, 1), 38), math.radians(-180), math.radians(-161.93)),
    Part.LineSegment(Vector(1.25, 23.99, 0), Vector(1.25, 29.8, 0)),
    Part.ArcOfCircle(Part.Circle(Vector(9.25, 29.8, 0), Vector(0, 0, 1), 8), math.radians(138), math.radians(180)),
    Part.ArcOfCircle(Part.Circle(Vector(2.94, 35.5, 0), Vector(0, 0, 1), 0.5), math.radians(-42), math.radians(90)),
], False)
sketch4.addConstraint([
    Sketcher.Constraint("Tangent", 0, 2, 1, 1),
    Sketcher.Constraint("Tangent", 1, 2, 2, 2),
    Sketcher.Constraint("Tangent", 2, 1, 3, 1),
    Sketcher.Constraint("Tangent", 3, 2, 4, 2),
    Sketcher.Constraint("Tangent", 4, 1, 5, 2),
    Sketcher.Constraint("Tangent", 5, 1, 6, 1),
    Sketcher.Constraint("Tangent", 6, 2, 7, 1),
    Sketcher.Constraint("Tangent", 7, 2, 8, 1),
    Sketcher.Constraint("Tangent", 8, 2, 9, 2),
    Sketcher.Constraint("Tangent", 9, 1, 10, 2),
    Sketcher.Constraint("Tangent", 10, 1, 11, 1),
    Sketcher.Constraint("Tangent", 11, 2, 12, 2),
    Sketcher.Constraint("Tangent", 12, 1, 13, 1),
    Sketcher.Constraint("Tangent", 13, 2, 0, 1),
    Sketcher.Constraint("Horizontal", 0),
    Sketcher.Constraint("Vertical", 3),
    Sketcher.Constraint("Horizontal", 7),
    Sketcher.Constraint("Vertical", 11),
    Sketcher.Constraint("Equal", 1, 6),
    Sketcher.Constraint("Equal", 6, 8),
    Sketcher.Constraint("Equal", 5, 9),
    Sketcher.Constraint("Equal", 4, 10),
    Sketcher.Constraint("Equal", 2, 12),
    Sketcher.Constraint("Equal", 8, 13),
    Sketcher.Constraint("Symmetric", 5, 3, 9, 3, -2),
    Sketcher.Constraint("Horizontal", 2, 3, 12, 3),
    Sketcher.Constraint("Horizontal", 4, 1, 9, 1),
    Sketcher.Constraint("Radius", 2, Q("8 mm")),
    Sketcher.Constraint("Radius", 4, Q("38 mm")),
    Sketcher.Constraint("Radius", 1, Q("0.5 mm")),
    Sketcher.Constraint("DistanceY", -1, 1, 0, 2, Q("36 mm")),
    Sketcher.Constraint("DistanceX", 2, 3, 10, 3, Q("48.5 mm")),
    Sketcher.Constraint("DistanceX", 7, 1, 7, 2, Q("5.385102 mm")),
    Sketcher.Constraint("Radius", 5, Q("37.999917 mm")),
    Sketcher.Constraint("DistanceX", 0, 2, 0, 1, Q("5.888529 mm")),
    Sketcher.Constraint("DistanceY", 3, 2, 3, 1, Q("5.811923 mm")),
    Sketcher.Constraint("DistanceY", -1, 1, 4, 1, Q("12.20323 mm")),
])
sketch4.setExpression("Constraints[27]", "Params.sketch4_radius")
sketch4.setExpression("Constraints[28]", "Params.sketch4_radius2")
sketch4.setExpression("Constraints[29]", "Params.sketch4_radius3")
pocket3 = body.newObject("PartDesign::Pocket", "Pocket002")
pocket3.Profile = sketch4
pocket3.setExpression("Length", "Params.pocket3_length")

sketch5 = body.newObject("Sketcher::SketchObject", "Sketch004")
sketch5.AttachmentSupport = (doc.getObject("XY_Plane"), [""])
sketch5.MapMode = "FlatFace"
sketch5.addGeometry(Part.Circle(Vector(0, 0, 0), Vector(0, 0, 1), 2.2), False)
sketch5.addConstraint([
    Sketcher.Constraint("Coincident", 0, 3, -1, 1),
    Sketcher.Constraint("Diameter", 0, Q("4.5 mm")),
])
sketch5.setExpression("Constraints[1]", "Params.sketch5_diameter")
doc.recompute()
hole = body.newObject("PartDesign::Hole", "Hole")
hole.Profile = sketch5
hole.ThreadType = "None"
hole.setExpression("Diameter", "Params.hole_diameter")
hole.DepthType = "ThroughAll"
hole.HoleCutType = "Countersink"
hole.setExpression("HoleCutDiameter", "Params.hole_csink_diameter")
hole.HoleCutCountersinkAngle = 90
hole.Reversed = True

doc.recompute()
